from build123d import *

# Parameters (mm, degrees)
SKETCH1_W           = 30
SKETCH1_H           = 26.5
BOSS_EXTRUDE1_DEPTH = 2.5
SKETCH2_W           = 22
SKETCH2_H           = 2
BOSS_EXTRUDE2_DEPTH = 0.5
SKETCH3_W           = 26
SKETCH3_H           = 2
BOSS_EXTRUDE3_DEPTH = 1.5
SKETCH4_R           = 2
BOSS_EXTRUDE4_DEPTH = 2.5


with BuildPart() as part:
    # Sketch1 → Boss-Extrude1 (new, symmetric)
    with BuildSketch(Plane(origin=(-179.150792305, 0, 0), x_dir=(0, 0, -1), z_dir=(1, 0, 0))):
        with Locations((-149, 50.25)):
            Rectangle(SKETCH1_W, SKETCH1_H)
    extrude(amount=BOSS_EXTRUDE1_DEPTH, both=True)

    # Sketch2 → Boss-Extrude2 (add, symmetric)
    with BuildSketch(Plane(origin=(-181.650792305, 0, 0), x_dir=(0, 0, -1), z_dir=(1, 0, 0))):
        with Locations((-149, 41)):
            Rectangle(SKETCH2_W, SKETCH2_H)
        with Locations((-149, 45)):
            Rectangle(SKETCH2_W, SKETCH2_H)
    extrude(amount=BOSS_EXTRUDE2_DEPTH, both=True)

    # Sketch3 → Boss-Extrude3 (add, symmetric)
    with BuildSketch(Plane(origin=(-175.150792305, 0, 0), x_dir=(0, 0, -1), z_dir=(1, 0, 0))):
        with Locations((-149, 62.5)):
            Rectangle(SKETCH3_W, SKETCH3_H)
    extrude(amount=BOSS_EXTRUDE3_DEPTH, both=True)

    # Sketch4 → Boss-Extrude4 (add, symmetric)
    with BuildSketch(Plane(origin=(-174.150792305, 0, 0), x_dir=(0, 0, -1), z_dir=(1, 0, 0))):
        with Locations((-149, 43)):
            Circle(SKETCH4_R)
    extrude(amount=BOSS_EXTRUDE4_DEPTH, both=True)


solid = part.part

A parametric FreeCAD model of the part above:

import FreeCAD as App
import Part
import Sketcher
from FreeCAD import Vector

doc = App.newDocument("Part")
body = doc.addObject("PartDesign::Body", "Body")

sketch1 = body.newObject("Sketcher::SketchObject", "Sketch")
sketch1.AttachmentSupport = (doc.getObject("YZ_Plane"), [""])
sketch1.MapMode = "FlatFace"
sketch1.AttachmentOffset = App.Placement(Vector(0, 0, -179.150792), App.Rotation())
sketch1.addGeometry(Part.LineSegment(Vector(64, 164, 0), Vector(37, 164, 0)), False)
sketch1.addGeometry(Part.LineSegment(Vector(37, 164, 0), Vector(37, 134, 0)), False)
sketch1.addGeometry(Part.LineSegment(Vector(37, 134, 0), Vector(64, 134, 0)), False)
sketch1.addGeometry(Part.LineSegment(Vector(64, 134, 0), Vector(64, 164, 0)), False)
sketch1.addConstraint(Sketcher.Constraint("Coincident", 0, 2, 1, 1))
sketch1.addConstraint(Sketcher.Constraint("Coincident", 1, 2, 2, 1))
sketch1.addConstraint(Sketcher.Constraint("Coincident", 2, 2, 3, 1))
sketch1.addConstraint(Sketcher.Constraint("Coincident", 3, 2, 0, 1))
sketch1.addConstraint(Sketcher.Constraint("Horizontal", 0))
sketch1.addConstraint(Sketcher.Constraint("Vertical", 1))
sketch1.addConstraint(Sketcher.Constraint("Horizontal", 2))
sketch1.addConstraint(Sketcher.Constraint("Vertical", 3))
sketch1.addConstraint(Sketcher.Constraint("DistanceY", 1, 2, 1, 1, 30.0))
sketch1.addConstraint(Sketcher.Constraint("DistanceX", 0, 2, 0, 1, 26.5))
sketch1.addConstraint(Sketcher.Constraint("DistanceX", -1, 1, 0, 2, 37.0))
sketch1.addConstraint(Sketcher.Constraint("DistanceY", -1, 1, 0, 2, 164.0))
pad1 = body.newObject("PartDesign::Pad", "Pad")
pad1.Profile = sketch1
pad1.Length = 5
pad1.Midplane = True

sketch2 = body.newObject("Sketcher::SketchObject", "Sketch001")
sketch2.AttachmentSupport = (doc.getObject("YZ_Plane"), [""])
sketch2.MapMode = "FlatFace"
sketch2.AttachmentOffset = App.Placement(Vector(0, 0, -181.650792), App.Rotation())
sketch2.addGeometry(Part.LineSegment(Vector(42, 160, 0), Vector(40, 160, 0)), False)
sketch2.addGeometry(Part.LineSegment(Vector(40, 160, 0), Vector(40, 138, 0)), False)
sketch2.addGeometry(Part.LineSegment(Vector(40, 138, 0), Vector(42, 138, 0)), False)
sketch2.addGeometry(Part.LineSegment(Vector(42, 138, 0), Vector(42, 160, 0)), False)
sketch2.addGeometry(Part.LineSegment(Vector(46, 160, 0), Vector(44, 160, 0)), False)
sketch2.addGeometry(Part.LineSegment(Vector(44, 160, 0), Vector(44, 138, 0)), False)
sketch2.addGeometry(Part.LineSegment(Vector(44, 138, 0), Vector(46, 138, 0)), False)
sketch2.addGeometry(Part.LineSegment(Vector(46, 138, 0), Vector(46, 160, 0)), False)
sketch2.addConstraint(Sketcher.Constraint("Coincident", 0, 2, 1, 1))
sketch2.addConstraint(Sketcher.Constraint("Coincident", 1, 2, 2, 1))
sketch2.addConstraint(Sketcher.Constraint("Coincident", 2, 2, 3, 1))
sketch2.addConstraint(Sketcher.Constraint("Coincident", 3, 2, 0, 1))
sketch2.addConstraint(Sketcher.Constraint("Coincident", 4, 2, 5, 1))
sketch2.addConstraint(Sketcher.Constraint("Coincident", 5, 2, 6, 1))
sketch2.addConstraint(Sketcher.Constraint("Coincident", 6, 2, 7, 1))
sketch2.addConstraint(Sketcher.Constraint("Coincident", 7, 2, 4, 1))
sketch2.addConstraint(Sketcher.Constraint("Horizontal", 0))
sketch2.addConstraint(Sketcher.Constraint("Vertical", 1))
sketch2.addConstraint(Sketcher.Constraint("Horizontal", 2))
sketch2.addConstraint(Sketcher.Constraint("Vertical", 3))
sketch2.addConstraint(Sketcher.Constraint("Horizontal", 4))
sketch2.addConstraint(Sketcher.Constraint("Vertical", 5))
sketch2.addConstraint(Sketcher.Constraint("Horizontal", 6))
sketch2.addConstraint(Sketcher.Constraint("Vertical", 7))
sketch2.addConstraint(Sketcher.Constraint("Horizontal", 3, 2, 4, 2))
sketch2.addConstraint(Sketcher.Constraint("Horizontal", 2, 2, 5, 2))
sketch2.addConstraint(Sketcher.Constraint("Equal", 2, 4))
sketch2.addConstraint(Sketcher.Constraint("DistanceX", 0, 2, 0, 1, 2.0))
sketch2.addConstraint(Sketcher.Constraint("DistanceY", 1, 2, 1, 1, 22.0))
sketch2.addConstraint(Sketcher.Constraint("DistanceX", -1, 1, 0, 2, 40.0))
sketch2.addConstraint(Sketcher.Constraint("DistanceY", -1, 1, 0, 2, 160.0))
sketch2.addConstraint(Sketcher.Constraint("DistanceX", -1, 1, 4, 2, 44.0))
pad2 = body.newObject("PartDesign::Pad", "Pad001")
pad2.Profile = sketch2
pad2.Length = 1
pad2.Midplane = True

sketch3 = body.newObject("Sketcher::SketchObject", "Sketch002")
sketch3.AttachmentSupport = (doc.getObject("YZ_Plane"), [""])
sketch3.MapMode = "FlatFace"
sketch3.AttachmentOffset = App.Placement(Vector(0, 0, -175.150792), App.Rotation())
sketch3.addGeometry(Part.LineSegment(Vector(63.5, 162, 0), Vector(61.5, 162, 0)), False)
sketch3.addGeometry(Part.LineSegment(Vector(61.5, 162, 0), Vector(61.5, 136, 0)), False)
sketch3.addGeometry(Part.LineSegment(Vector(61.5, 136, 0), Vector(63.5, 136, 0)), False)
sketch3.addGeometry(Part.LineSegment(Vector(63.5, 136, 0), Vector(63.5, 162, 0)), False)
sketch3.addConstraint(Sketcher.Constraint("Coincident", 0, 2, 1, 1))
sketch3.addConstraint(Sketcher.Constraint("Coincident", 1, 2, 2, 1))
sketch3.addConstraint(Sketcher.Constraint("Coincident", 2, 2, 3, 1))
sketch3.addConstraint(Sketcher.Constraint("Coincident", 3, 2, 0, 1))
sketch3.addConstraint(Sketcher.Constraint("Horizontal", 0))
sketch3.addConstraint(Sketcher.Constraint("Vertical", 1))
sketch3.addConstraint(Sketcher.Constraint("Horizontal", 2))
sketch3.addConstraint(Sketcher.Constraint("Vertical", 3))
sketch3.addConstraint(Sketcher.Constraint("DistanceX", 0, 2, 0, 1, 2.0))
sketch3.addConstraint(Sketcher.Constraint("DistanceY", 1, 2, 1, 1, 26.0))
sketch3.addConstraint(Sketcher.Constraint("DistanceY", -1, 1, 0, 2, 162.0))
sketch3.addConstraint(Sketcher.Constraint("DistanceX", -1, 1, 0, 2, 61.5))
pad3 = body.newObject("PartDesign::Pad", "Pad002")
pad3.Profile = sketch3
pad3.Length = 3
pad3.Midplane = True

sketch4 = body.newObject("Sketcher::SketchObject", "Sketch003")
sketch4.AttachmentSupport = (doc.getObject("YZ_Plane"), [""])
sketch4.MapMode = "FlatFace"
sketch4.AttachmentOffset = App.Placement(Vector(0, 0, -174.150792), App.Rotation())
sketch4.addGeometry(Part.Circle(Vector(43, 149, 0), Vector(0, 0, 1), 2), False)
sketch4.addConstraint(Sketcher.Constraint("Diameter", 0, 4.0))
sketch4.addConstraint(Sketcher.Constraint("DistanceX", -1, 1, 0, 3, 43.0))
sketch4.addConstraint(Sketcher.Constraint("DistanceY", -1, 1, 0, 3, 149.0))
pad4 = body.newObject("PartDesign::Pad", "Pad003")
pad4.Profile = sketch4
pad4.Length = 5
pad4.Midplane = True

doc.recompute()
